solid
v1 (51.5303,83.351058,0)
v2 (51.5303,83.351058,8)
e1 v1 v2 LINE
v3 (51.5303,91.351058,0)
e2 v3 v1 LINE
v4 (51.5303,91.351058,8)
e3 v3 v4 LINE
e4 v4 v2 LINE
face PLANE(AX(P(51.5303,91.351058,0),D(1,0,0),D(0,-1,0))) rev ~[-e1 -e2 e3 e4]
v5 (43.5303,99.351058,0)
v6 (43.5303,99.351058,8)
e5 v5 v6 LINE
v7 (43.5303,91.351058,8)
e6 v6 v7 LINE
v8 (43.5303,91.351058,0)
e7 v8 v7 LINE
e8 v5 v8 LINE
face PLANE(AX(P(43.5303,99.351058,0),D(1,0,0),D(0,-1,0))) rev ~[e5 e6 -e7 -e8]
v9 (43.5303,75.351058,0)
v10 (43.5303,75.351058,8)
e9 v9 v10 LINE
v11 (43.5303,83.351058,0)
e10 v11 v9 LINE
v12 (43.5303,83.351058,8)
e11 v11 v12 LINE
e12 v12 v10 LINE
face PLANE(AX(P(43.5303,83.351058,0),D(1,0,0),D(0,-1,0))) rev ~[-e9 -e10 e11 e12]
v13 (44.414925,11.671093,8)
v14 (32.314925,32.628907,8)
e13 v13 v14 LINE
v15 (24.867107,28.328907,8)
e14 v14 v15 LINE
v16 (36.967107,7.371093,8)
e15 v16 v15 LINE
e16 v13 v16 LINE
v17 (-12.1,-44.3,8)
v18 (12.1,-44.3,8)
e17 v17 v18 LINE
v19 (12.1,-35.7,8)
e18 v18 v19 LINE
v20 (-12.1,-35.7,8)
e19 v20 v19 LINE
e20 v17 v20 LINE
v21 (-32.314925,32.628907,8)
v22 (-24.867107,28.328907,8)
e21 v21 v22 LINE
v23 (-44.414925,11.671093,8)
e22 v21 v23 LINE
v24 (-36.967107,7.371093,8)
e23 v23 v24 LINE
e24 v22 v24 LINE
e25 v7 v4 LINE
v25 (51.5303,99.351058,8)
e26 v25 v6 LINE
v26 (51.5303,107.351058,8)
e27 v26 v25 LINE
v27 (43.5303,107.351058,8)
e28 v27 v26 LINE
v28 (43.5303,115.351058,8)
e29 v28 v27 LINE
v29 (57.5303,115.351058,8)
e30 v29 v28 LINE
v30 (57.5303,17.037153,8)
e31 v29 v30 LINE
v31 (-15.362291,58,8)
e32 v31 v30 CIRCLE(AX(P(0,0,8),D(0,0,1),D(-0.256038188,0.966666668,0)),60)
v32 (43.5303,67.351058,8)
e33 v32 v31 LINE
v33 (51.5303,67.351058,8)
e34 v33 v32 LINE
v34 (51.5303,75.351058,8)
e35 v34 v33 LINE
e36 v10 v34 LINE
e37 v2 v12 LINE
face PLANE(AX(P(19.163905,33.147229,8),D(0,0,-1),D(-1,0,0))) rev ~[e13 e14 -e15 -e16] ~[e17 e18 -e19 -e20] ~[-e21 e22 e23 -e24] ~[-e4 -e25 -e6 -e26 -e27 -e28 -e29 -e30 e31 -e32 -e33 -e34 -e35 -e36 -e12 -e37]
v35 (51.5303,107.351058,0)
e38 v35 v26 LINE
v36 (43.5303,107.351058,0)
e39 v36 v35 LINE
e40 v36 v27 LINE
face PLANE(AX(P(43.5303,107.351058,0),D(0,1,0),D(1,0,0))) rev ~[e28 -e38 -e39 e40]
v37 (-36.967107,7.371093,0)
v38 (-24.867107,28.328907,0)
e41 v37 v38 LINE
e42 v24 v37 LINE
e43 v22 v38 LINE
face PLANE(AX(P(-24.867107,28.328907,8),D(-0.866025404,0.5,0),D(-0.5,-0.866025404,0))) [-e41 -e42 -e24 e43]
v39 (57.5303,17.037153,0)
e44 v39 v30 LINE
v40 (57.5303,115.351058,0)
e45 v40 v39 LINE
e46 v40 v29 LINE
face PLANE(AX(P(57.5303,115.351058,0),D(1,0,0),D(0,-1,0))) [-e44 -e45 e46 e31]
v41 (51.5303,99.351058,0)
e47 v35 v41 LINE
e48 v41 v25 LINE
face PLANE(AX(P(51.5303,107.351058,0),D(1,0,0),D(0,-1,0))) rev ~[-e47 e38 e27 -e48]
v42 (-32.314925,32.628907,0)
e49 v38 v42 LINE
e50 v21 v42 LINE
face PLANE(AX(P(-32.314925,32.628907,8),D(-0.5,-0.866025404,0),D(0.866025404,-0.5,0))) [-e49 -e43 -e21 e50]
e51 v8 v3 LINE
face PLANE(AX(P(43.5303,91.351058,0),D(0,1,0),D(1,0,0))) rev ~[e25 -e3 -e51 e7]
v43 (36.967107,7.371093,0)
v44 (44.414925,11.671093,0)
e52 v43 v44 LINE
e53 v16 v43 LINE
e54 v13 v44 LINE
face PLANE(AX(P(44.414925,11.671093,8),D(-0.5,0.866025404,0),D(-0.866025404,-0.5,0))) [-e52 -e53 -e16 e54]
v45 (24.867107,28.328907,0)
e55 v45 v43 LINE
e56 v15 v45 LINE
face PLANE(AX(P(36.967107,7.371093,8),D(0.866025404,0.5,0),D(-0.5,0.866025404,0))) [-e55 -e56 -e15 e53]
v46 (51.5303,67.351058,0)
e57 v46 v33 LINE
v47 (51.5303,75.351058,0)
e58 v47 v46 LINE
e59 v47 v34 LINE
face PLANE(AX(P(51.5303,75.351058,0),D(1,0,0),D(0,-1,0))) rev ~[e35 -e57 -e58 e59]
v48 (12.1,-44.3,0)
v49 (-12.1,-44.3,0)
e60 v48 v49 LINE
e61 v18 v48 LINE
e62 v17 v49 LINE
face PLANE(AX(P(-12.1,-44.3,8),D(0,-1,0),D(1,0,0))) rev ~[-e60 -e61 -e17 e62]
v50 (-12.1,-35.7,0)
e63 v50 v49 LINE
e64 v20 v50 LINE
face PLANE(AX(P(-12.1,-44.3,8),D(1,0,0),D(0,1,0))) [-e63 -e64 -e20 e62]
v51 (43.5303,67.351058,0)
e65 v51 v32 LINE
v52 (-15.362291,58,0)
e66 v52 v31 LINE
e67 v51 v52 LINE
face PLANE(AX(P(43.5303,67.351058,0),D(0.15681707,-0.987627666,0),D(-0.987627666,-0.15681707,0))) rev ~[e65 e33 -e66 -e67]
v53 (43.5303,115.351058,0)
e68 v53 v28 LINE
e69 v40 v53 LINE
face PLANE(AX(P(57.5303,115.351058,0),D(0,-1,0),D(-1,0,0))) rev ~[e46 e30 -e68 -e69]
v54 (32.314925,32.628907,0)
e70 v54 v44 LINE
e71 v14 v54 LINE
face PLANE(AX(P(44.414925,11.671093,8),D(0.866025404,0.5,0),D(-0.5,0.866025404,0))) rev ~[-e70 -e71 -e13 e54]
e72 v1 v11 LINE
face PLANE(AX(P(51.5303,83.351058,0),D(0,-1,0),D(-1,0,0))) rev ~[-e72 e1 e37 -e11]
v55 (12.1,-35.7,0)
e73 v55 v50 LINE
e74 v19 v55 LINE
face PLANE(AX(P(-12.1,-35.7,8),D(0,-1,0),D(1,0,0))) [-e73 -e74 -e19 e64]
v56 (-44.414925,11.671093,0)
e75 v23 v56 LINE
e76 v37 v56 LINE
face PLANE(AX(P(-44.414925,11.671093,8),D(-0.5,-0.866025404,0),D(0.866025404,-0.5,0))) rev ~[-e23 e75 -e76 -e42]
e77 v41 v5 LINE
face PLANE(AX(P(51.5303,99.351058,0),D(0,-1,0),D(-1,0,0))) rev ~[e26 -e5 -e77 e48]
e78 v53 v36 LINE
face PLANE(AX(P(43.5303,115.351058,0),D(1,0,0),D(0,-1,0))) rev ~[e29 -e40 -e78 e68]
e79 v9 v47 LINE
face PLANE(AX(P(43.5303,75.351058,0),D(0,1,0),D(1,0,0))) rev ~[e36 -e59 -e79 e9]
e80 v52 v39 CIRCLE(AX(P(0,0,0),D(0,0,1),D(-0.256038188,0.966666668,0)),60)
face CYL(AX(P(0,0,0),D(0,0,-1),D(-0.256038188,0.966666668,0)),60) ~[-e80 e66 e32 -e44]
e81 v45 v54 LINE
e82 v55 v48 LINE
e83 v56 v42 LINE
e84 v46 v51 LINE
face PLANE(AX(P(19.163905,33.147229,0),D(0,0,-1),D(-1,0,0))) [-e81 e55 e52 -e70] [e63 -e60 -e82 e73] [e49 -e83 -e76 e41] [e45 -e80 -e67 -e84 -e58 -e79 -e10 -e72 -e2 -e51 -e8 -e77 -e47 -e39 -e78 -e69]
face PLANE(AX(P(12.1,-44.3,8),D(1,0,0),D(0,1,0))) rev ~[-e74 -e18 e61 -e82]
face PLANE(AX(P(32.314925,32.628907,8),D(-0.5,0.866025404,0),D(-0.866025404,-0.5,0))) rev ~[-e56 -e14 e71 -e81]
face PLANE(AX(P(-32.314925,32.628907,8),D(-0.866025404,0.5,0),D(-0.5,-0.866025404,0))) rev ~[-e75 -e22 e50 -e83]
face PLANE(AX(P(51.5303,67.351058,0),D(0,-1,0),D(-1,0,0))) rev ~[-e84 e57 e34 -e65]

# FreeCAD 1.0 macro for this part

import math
import FreeCAD as App
import Part
import Sketcher
Q = App.Units.Quantity


def add_polygon(sketch, points):
    """Adds a closed chain of lines whose ends are joined by coincident constraints."""
    first, n = sketch.GeometryCount, len(points)
    for a, b in zip(points, points[1:] + points[:1]):
        sketch.addGeometry(Part.LineSegment(App.Vector(*a, 0), App.Vector(*b, 0)), False)
    for i in range(n):
        sketch.addConstraint(Sketcher.Constraint("Coincident", first + i, 2, first + (i + 1) % n, 1))

doc = App.newDocument("Part")
params = doc.addObject("Spreadsheet::Sheet", "Params")
for row, (alias, value) in enumerate([
    ("sketch1_radius", "60 mm"),
    ("sketch1_width", "14 mm"),
    ("sketch1_width2", "8 mm"),
    ("pad1_length", "8 mm"),
    ("sketch2_width", "24.2 mm"),
    ("sketch2_height", "8.6 mm"),
], start=1):
    params.set(f"A{row}", alias)
    params.set(f"B{row}", "=" + value)
    params.setAlias(f"B{row}", alias)

body = doc.addObject("PartDesign::Body", "Body")

# Sketch on XY plane
sketch1 = doc.addObject("Sketcher::SketchObject", "Sketch")
body.addObject(sketch1)
sketch1.AttachmentSupport = (doc.XY_Plane, [""])
sketch1.MapMode = "FlatFace"
sketch1.addGeometry([
    Part.LineSegment(App.Vector(58, 115, 0), App.Vector(44, 115, 0)),  # 0
    Part.LineSegment(App.Vector(44, 115, 0), App.Vector(44, 107, 0)),  # 1
    Part.LineSegment(App.Vector(44, 107, 0), App.Vector(52, 107, 0)),  # 2
    Part.LineSegment(App.Vector(52, 107, 0), App.Vector(52, 99, 0)),  # 3
    Part.LineSegment(App.Vector(52, 99, 0), App.Vector(44, 99, 0)),  # 4
    Part.LineSegment(App.Vector(44, 99, 0), App.Vector(44, 91, 0)),  # 5
    Part.LineSegment(App.Vector(44, 91, 0), App.Vector(52, 91, 0)),  # 6
    Part.LineSegment(App.Vector(52, 91, 0), App.Vector(52, 83, 0)),  # 7
    Part.LineSegment(App.Vector(52, 83, 0), App.Vector(44, 83, 0)),  # 8
    Part.LineSegment(App.Vector(44, 83, 0), App.Vector(44, 75, 0)),  # 9
    Part.LineSegment(App.Vector(44, 75, 0), App.Vector(52, 75, 0)),  # 10
    Part.LineSegment(App.Vector(52, 75, 0), App.Vector(52, 67, 0)),  # 11
    Part.LineSegment(App.Vector(52, 67, 0), App.Vector(44, 67, 0)),  # 12
    Part.LineSegment(App.Vector(44, 67, 0), App.Vector(-15, 58, 0)),  # 13
    Part.ArcOfCircle(Part.Circle(App.Vector(0, 0, 0), App.Vector(0, 0, 1), 60), math.radians(105), math.radians(376)),  # 14
    Part.LineSegment(App.Vector(58, 17, 0), App.Vector(58, 115, 0)),  # 15
], False)
sketch1.addConstraint([
    Sketcher.Constraint("Coincident", 0, 2, 1, 1),
    Sketcher.Constraint("Coincident", 1, 2, 2, 1),
    Sketcher.Constraint("Coincident", 2, 2, 3, 1),
    Sketcher.Constraint("Coincident", 3, 2, 4, 1),
    Sketcher.Constraint("Coincident", 4, 2, 5, 1),
    Sketcher.Constraint("Coincident", 5, 2, 6, 1),
    Sketcher.Constraint("Coincident", 6, 2, 7, 1),
    Sketcher.Constraint("Coincident", 7, 2, 8, 1),
    Sketcher.Constraint("Coincident", 8, 2, 9, 1),
    Sketcher.Constraint("Coincident", 9, 2, 10, 1),
    Sketcher.Constraint("Coincident", 10, 2, 11, 1),
    Sketcher.Constraint("Coincident", 11, 2, 12, 1),
    Sketcher.Constraint("Coincident", 12, 2, 13, 1),
    Sketcher.Constraint("Coincident", 13, 2, 14, 1),
    Sketcher.Constraint("Coincident", 14, 2, 15, 1),
    Sketcher.Constraint("Coincident", 15, 2, 0, 1),
    Sketcher.Constraint("Horizontal", 0),
    Sketcher.Constraint("Vertical", 1),
    Sketcher.Constraint("Horizontal", 2),
    Sketcher.Constraint("Vertical", 3),
    Sketcher.Constraint("Horizontal", 4),
    Sketcher.Constraint("Vertical", 5),
    Sketcher.Constraint("Horizontal", 6),
    Sketcher.Constraint("Vertical", 7),
    Sketcher.Constraint("Horizontal", 8),
    Sketcher.Constraint("Vertical", 9),
    Sketcher.Constraint("Horizontal", 10),
    Sketcher.Constraint("Vertical", 11),
    Sketcher.Constraint("Horizontal", 12),
    Sketcher.Constraint("Vertical", 15),
    Sketcher.Constraint("Coincident", 14, 3, -1, 1),
    Sketcher.Constraint("Vertical", 1, 2, 4, 2),
    Sketcher.Constraint("Vertical", 3, 2, 6, 2),
    Sketcher.Constraint("Vertical", 5, 2, 8, 2),
    Sketcher.Constraint("Vertical", 7, 2, 10, 2),
    Sketcher.Constraint("Vertical", 9, 2, 12, 2),
    Sketcher.Constraint("Equal", 12, 1),
    Sketcher.Constraint("Equal", 1, 3),
    Sketcher.Constraint("Equal", 3, 5),
    Sketcher.Constraint("Equal", 5, 7),
    Sketcher.Constraint("Equal", 7, 9),
    Sketcher.Constraint("Equal", 9, 11),
    Sketcher.Constraint("Radius", 14, Q("60 mm")),
    Sketcher.Constraint("DistanceX", 0, 2, 0, 1, Q("14 mm")),
    Sketcher.Constraint("DistanceX", 2, 1, 2, 2, Q("8 mm")),
    Sketcher.Constraint("DistanceY", -1, 1, 13, 2, Q("58 mm")),
    Sketcher.Constraint("DistanceX", -1, 1, 0, 2, Q("43.5303 mm")),
    Sketcher.Constraint("DistanceY", 15, 1, 15, 2, Q("98.313905 mm")),
])
sketch1.setExpression("Constraints[42]", "Params.sketch1_radius")
sketch1.setExpression("Constraints[43]", "Params.sketch1_width")
sketch1.setExpression("Constraints[44]", "Params.sketch1_width2")
pad1 = doc.addObject("PartDesign::Pad", "Pad")
body.addObject(pad1)
pad1.Profile = sketch1
pad1.setExpression("Length", "Params.pad1_length")

# Sketch on XY plane
sketch2 = doc.addObject("Sketcher::SketchObject", "Sketch001")
body.addObject(sketch2)
sketch2.AttachmentSupport = (doc.XY_Plane, [""])
sketch2.MapMode = "FlatFace"
sketch2.AttachmentOffset = App.Placement(App.Vector(0, 0, 8), App.Rotation())
add_polygon(sketch2, [(-12, -36), (-12, -44), (12, -44), (12, -36)])  # lines 0-3
sketch2.addConstraint([
    Sketcher.Constraint("Vertical", 0),
    Sketcher.Constraint("Horizontal", 1),
    Sketcher.Constraint("Vertical", 2),
    Sketcher.Constraint("Horizontal", 3),
    Sketcher.Constraint("DistanceX", 1, 1, 1, 2, Q("24.2 mm")),
    Sketcher.Constraint("DistanceY", 0, 2, 0, 1, Q("8.6 mm")),
    Sketcher.Constraint("DistanceX", 0, 2, -1, 1, Q("12.1 mm")),
    Sketcher.Constraint("DistanceY", 0, 2, -1, 1, Q("44.3 mm")),
])
sketch2.setExpression("Constraints[8]", "Params.sketch2_width")
sketch2.setExpression("Constraints[9]", "Params.sketch2_height")
pocket1 = doc.addObject("PartDesign::Pocket", "Pocket")
body.addObject(pocket1)
pocket1.Profile = sketch2
pocket1.Type = "ThroughAll"
doc.recompute()

polarpattern = doc.addObject("PartDesign::PolarPattern", "PolarPattern")
body.addObject(polarpattern)
polarpattern.Originals = [pocket1]
polarpattern.Axis = (doc.Z_Axis, [""])
polarpattern.Angle = 360
polarpattern.Occurrences = 3
body.Tip = polarpattern

doc.recompute()
